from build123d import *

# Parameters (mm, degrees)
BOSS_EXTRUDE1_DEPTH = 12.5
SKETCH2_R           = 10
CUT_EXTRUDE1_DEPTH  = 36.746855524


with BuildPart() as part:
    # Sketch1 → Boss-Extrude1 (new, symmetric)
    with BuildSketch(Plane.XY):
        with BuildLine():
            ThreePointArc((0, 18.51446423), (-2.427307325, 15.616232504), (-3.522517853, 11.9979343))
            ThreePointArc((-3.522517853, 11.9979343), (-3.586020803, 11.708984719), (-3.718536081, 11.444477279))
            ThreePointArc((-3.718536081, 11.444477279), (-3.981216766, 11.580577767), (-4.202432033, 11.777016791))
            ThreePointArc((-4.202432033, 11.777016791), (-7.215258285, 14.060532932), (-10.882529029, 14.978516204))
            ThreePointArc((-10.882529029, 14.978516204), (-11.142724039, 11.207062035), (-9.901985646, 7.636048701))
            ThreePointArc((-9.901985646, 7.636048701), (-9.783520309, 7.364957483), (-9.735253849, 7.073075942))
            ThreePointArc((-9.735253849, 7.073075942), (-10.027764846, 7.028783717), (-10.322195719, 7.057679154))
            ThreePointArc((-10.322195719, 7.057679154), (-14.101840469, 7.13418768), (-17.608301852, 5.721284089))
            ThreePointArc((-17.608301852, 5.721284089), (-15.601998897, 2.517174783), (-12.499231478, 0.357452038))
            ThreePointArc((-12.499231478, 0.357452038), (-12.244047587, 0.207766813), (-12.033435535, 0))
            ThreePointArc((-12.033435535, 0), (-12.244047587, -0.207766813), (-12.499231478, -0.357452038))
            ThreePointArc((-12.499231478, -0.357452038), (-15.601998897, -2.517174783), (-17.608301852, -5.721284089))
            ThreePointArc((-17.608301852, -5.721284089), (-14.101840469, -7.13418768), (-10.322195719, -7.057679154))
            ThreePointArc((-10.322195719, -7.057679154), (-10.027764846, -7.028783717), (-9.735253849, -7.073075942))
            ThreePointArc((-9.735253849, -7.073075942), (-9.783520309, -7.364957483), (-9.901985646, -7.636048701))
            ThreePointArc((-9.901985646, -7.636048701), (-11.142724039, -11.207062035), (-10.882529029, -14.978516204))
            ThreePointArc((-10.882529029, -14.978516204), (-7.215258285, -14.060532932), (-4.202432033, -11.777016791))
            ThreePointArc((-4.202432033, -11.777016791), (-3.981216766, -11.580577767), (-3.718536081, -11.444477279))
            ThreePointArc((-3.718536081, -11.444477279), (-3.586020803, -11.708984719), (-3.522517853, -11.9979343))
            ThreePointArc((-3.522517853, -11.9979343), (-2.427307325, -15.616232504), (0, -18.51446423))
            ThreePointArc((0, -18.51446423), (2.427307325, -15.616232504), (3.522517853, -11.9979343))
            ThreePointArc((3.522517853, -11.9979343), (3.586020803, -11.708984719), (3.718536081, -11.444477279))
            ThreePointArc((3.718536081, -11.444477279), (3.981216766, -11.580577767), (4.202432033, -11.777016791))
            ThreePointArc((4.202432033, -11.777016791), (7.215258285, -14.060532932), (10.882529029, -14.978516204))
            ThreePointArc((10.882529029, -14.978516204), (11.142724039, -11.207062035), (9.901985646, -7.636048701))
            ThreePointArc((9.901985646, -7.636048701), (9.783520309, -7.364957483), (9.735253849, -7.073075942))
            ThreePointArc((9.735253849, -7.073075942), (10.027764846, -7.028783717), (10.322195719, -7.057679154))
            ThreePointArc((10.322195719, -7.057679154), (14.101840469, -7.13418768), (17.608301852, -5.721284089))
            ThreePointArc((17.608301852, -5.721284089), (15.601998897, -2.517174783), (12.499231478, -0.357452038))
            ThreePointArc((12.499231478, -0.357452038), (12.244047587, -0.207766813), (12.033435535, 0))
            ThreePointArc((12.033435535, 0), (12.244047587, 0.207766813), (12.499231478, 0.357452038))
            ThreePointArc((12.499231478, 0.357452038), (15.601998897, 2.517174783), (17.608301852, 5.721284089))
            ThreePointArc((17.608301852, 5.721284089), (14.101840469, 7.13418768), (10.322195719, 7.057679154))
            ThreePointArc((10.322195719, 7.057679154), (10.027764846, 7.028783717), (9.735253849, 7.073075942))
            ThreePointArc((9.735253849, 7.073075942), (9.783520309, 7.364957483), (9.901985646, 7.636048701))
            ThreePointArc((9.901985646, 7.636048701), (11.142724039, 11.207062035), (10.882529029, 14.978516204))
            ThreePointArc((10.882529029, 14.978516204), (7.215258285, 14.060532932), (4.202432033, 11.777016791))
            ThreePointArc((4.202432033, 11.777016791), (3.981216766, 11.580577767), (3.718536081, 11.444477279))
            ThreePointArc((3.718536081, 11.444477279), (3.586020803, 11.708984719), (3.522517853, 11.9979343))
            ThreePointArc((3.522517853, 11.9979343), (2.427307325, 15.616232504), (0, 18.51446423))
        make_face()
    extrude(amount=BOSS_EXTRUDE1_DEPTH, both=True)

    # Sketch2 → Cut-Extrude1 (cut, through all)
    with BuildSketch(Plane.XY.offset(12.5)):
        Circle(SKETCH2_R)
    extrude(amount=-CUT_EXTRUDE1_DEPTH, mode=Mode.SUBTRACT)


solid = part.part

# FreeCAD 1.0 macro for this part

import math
import FreeCAD as App
import Part
import Sketcher

V = App.Vector
Q = App.Units.Quantity

doc = App.newDocument("Part")
params = doc.addObject("Spreadsheet::Sheet", "Params")
for row, (alias, value) in enumerate([
    ("pad1_length", "25 mm"),
    ("sketch2_diameter", "20 mm"),
], start=1):
    params.set(f"A{row}", alias)
    params.set(f"B{row}", "=" + value)
    params.setAlias(f"B{row}", alias)

body = doc.addObject("PartDesign::Body", "Body")

sketch1 = body.newObject("Sketcher::SketchObject", "Sketch")
sketch1.AttachmentSupport = (doc.getObject("XY_Plane"), [""])
sketch1.MapMode = "FlatFace"
sketch1.addGeometry(Part.ArcOfCircle(Part.Circle(V(5.875326, 11.128234, 0), V(0, 0, 1), 9.438), math.radians(128.500254), math.radians(174.712765)), False)
sketch1.addGeometry(Part.ArcOfCircle(Part.Circle(V(-4.712911, 12.108096, 0), V(0, 0, 1), 1.19548), math.radians(-33.718067), math.radians(-5.287235)), False)
sketch1.addGeometry(Part.ArcOfCircle(Part.Circle(V(-3.304135, 12.565835, 0), V(0, 0, 1), 1.19548), math.radians(-138.712765), math.radians(-110.281933)), False)
sketch1.addGeometry(Part.ArcOfCircle(Part.Circle(V(-11.294251, 5.549501, 0), V(0, 0, 1), 9.438), math.radians(41.287235), math.radians(87.499746)), False)
sketch1.addGeometry(Part.ArcOfCircle(Part.Circle(V(-1.787774, 12.456361, 0), V(0, 0, 1), 9.438), math.radians(164.500254), math.radians(210.712765)), False)
sketch1.addGeometry(Part.ArcOfCircle(Part.Circle(V(-10.929786, 7.025476, 0), V(0, 0, 1), 1.19548), math.radians(2.281933), math.radians(30.712765)), False)
sketch1.addGeometry(Part.ArcOfCircle(Part.Circle(V(-10.059114, 8.223853, 0), V(0, 0, 1), 1.19548), math.radians(-102.712765), math.radians(-74.281933)), False)
sketch1.addGeometry(Part.ArcOfCircle(Part.Circle(V(-12.399155, -2.148953, 0), V(0, 0, 1), 9.438), math.radians(77.287235), math.radians(123.499746)), False)
sketch1.addGeometry(Part.ArcOfCircle(Part.Circle(V(-8.768004, 9.02658, 0), V(0, 0, 1), 9.438), math.radians(-159.499746), math.radians(-113.287235)), False)
sketch1.addGeometry(Part.ArcOfCircle(Part.Circle(V(-12.971854, -0.740638, 0), V(0, 0, 1), 1.19548), math.radians(38.281933), math.radians(66.712765)), False)
sketch1.addGeometry(Part.ArcOfCircle(Part.Circle(V(-12.971854, 0.740638, 0), V(0, 0, 1), 1.19548), math.radians(-66.712765), math.radians(-38.281933)), False)
sketch1.addGeometry(Part.ArcOfCircle(Part.Circle(V(-8.768004, -9.02658, 0), V(0, 0, 1), 9.438), math.radians(113.287235), math.radians(159.499746)), False)
sketch1.addGeometry(Part.ArcOfCircle(Part.Circle(V(-12.399155, 2.148953, 0), V(0, 0, 1), 9.438), math.radians(-123.499746), math.radians(-77.287235)), False)
sketch1.addGeometry(Part.ArcOfCircle(Part.Circle(V(-10.059114, -8.223853, 0), V(0, 0, 1), 1.19548), math.radians(74.281933), math.radians(102.712765)), False)
sketch1.addGeometry(Part.ArcOfCircle(Part.Circle(V(-10.929786, -7.025476, 0), V(0, 0, 1), 1.19548), math.radians(-30.712765), math.radians(-2.281933)), False)
sketch1.addGeometry(Part.ArcOfCircle(Part.Circle(V(-1.787774, -12.456361, 0), V(0, 0, 1), 9.438), math.radians(149.287235), math.radians(195.499746)), False)
sketch1.addGeometry(Part.ArcOfCircle(Part.Circle(V(-11.294251, -5.549501, 0), V(0, 0, 1), 9.438), math.radians(-87.499746), math.radians(-41.287235)), False)
sketch1.addGeometry(Part.ArcOfCircle(Part.Circle(V(-3.304135, -12.565835, 0), V(0, 0, 1), 1.19548), math.radians(110.281933), math.radians(138.712765)), False)
sketch1.addGeometry(Part.ArcOfCircle(Part.Circle(V(-4.712911, -12.108096, 0), V(0, 0, 1), 1.19548), math.radians(5.287235), math.radians(33.718067)), False)
sketch1.addGeometry(Part.ArcOfCircle(Part.Circle(V(5.875326, -11.128234, 0), V(0, 0, 1), 9.438), math.radians(-174.712765), math.radians(-128.500254)), False)
sketch1.addGeometry(Part.ArcOfCircle(Part.Circle(V(-5.875326, -11.128234, 0), V(0, 0, 1), 9.438), math.radians(-51.499746), math.radians(-5.287235)), False)
sketch1.addGeometry(Part.ArcOfCircle(Part.Circle(V(4.712911, -12.108096, 0), V(0, 0, 1), 1.19548), math.radians(146.281933), math.radians(174.712765)), False)
sketch1.addGeometry(Part.ArcOfCircle(Part.Circle(V(3.304135, -12.565835, 0), V(0, 0, 1), 1.19548), math.radians(41.287235), math.radians(69.718067)), False)
sketch1.addGeometry(Part.ArcOfCircle(Part.Circle(V(11.294251, -5.549501, 0), V(0, 0, 1), 9.438), math.radians(-138.712765), math.radians(-92.500254)), False)
sketch1.addGeometry(Part.ArcOfCircle(Part.Circle(V(1.787774, -12.456361, 0), V(0, 0, 1), 9.438), math.radians(-15.499746), math.radians(30.712765)), False)
sketch1.addGeometry(Part.ArcOfCircle(Part.Circle(V(10.929786, -7.025476, 0), V(0, 0, 1), 1.19548), math.radians(-177.718067), math.radians(-149.287235)), False)
sketch1.addGeometry(Part.ArcOfCircle(Part.Circle(V(10.059114, -8.223853, 0), V(0, 0, 1), 1.19548), math.radians(77.287235), math.radians(105.718067)), False)
sketch1.addGeometry(Part.ArcOfCircle(Part.Circle(V(12.399155, 2.148953, 0), V(0, 0, 1), 9.438), math.radians(-102.712765), math.radians(-56.500254)), False)
sketch1.addGeometry(Part.ArcOfCircle(Part.Circle(V(8.768004, -9.02658, 0), V(0, 0, 1), 9.438), math.radians(20.500254), math.radians(66.712765)), False)
sketch1.addGeometry(Part.ArcOfCircle(Part.Circle(V(12.971854, 0.740638, 0), V(0, 0, 1), 1.19548), math.radians(-141.718067), math.radians(-113.287235)), False)
sketch1.addGeometry(Part.ArcOfCircle(Part.Circle(V(12.971854, -0.740638, 0), V(0, 0, 1), 1.19548), math.radians(113.287235), math.radians(141.718067)), False)
sketch1.addGeometry(Part.ArcOfCircle(Part.Circle(V(8.768004, 9.02658, 0), V(0, 0, 1), 9.438), math.radians(-66.712765), math.radians(-20.500254)), False)
sketch1.addGeometry(Part.ArcOfCircle(Part.Circle(V(12.399155, -2.148953, 0), V(0, 0, 1), 9.438), math.radians(56.500254), math.radians(102.712765)), False)
sketch1.addGeometry(Part.ArcOfCircle(Part.Circle(V(10.059114, 8.223853, 0), V(0, 0, 1), 1.19548), math.radians(-105.718067), math.radians(-77.287235)), False)
sketch1.addGeometry(Part.ArcOfCircle(Part.Circle(V(10.929786, 7.025476, 0), V(0, 0, 1), 1.19548), math.radians(149.287235), math.radians(177.718067)), False)
sketch1.addGeometry(Part.ArcOfCircle(Part.Circle(V(1.787774, 12.456361, 0), V(0, 0, 1), 9.438), math.radians(-30.712765), math.radians(15.499746)), False)
sketch1.addGeometry(Part.ArcOfCircle(Part.Circle(V(11.294251, 5.549501, 0), V(0, 0, 1), 9.438), math.radians(92.500254), math.radians(138.712765)), False)
sketch1.addGeometry(Part.ArcOfCircle(Part.Circle(V(3.304135, 12.565835, 0), V(0, 0, 1), 1.19548), math.radians(-69.718067), math.radians(-41.287235)), False)
sketch1.addGeometry(Part.ArcOfCircle(Part.Circle(V(4.712911, 12.108096, 0), V(0, 0, 1), 1.19548), math.radians(-174.712765), math.radians(-146.281933)), False)
sketch1.addGeometry(Part.ArcOfCircle(Part.Circle(V(-5.875326, 11.128234, 0), V(0, 0, 1), 9.438), math.radians(5.287235), math.radians(51.499746)), False)
sketch1.addConstraint(Sketcher.Constraint("Coincident", 0, 2, 1, 2))
sketch1.addConstraint(Sketcher.Constraint("Coincident", 1, 1, 2, 2))
sketch1.addConstraint(Sketcher.Constraint("Coincident", 2, 1, 3, 1))
sketch1.addConstraint(Sketcher.Constraint("Coincident", 3, 2, 4, 1))
sketch1.addConstraint(Sketcher.Constraint("Coincident", 4, 2, 5, 2))
sketch1.addConstraint(Sketcher.Constraint("Coincident", 5, 1, 6, 2))
sketch1.addConstraint(Sketcher.Constraint("Coincident", 6, 1, 7, 1))
sketch1.addConstraint(Sketcher.Constraint("Coincident", 7, 2, 8, 1))
sketch1.addConstraint(Sketcher.Constraint("Coincident", 8, 2, 9, 2))
sketch1.addConstraint(Sketcher.Constraint("Coincident", 9, 1, 10, 2))
sketch1.addConstraint(Sketcher.Constraint("Coincident", 10, 1, 11, 1))
sketch1.addConstraint(Sketcher.Constraint("Coincident", 11, 2, 12, 1))
sketch1.addConstraint(Sketcher.Constraint("Coincident", 12, 2, 13, 2))
sketch1.addConstraint(Sketcher.Constraint("Coincident", 13, 1, 14, 2))
sketch1.addConstraint(Sketcher.Constraint("Coincident", 14, 1, 15, 1))
sketch1.addConstraint(Sketcher.Constraint("Coincident", 15, 2, 16, 1))
sketch1.addConstraint(Sketcher.Constraint("Coincident", 16, 2, 17, 2))
sketch1.addConstraint(Sketcher.Constraint("Coincident", 17, 1, 18, 2))
sketch1.addConstraint(Sketcher.Constraint("Coincident", 18, 1, 19, 1))
sketch1.addConstraint(Sketcher.Constraint("Coincident", 19, 2, 20, 1))
sketch1.addConstraint(Sketcher.Constraint("Coincident", 20, 2, 21, 2))
sketch1.addConstraint(Sketcher.Constraint("Coincident", 21, 1, 22, 2))
sketch1.addConstraint(Sketcher.Constraint("Coincident", 22, 1, 23, 1))
sketch1.addConstraint(Sketcher.Constraint("Coincident", 23, 2, 24, 1))
sketch1.addConstraint(Sketcher.Constraint("Coincident", 24, 2, 25, 2))
sketch1.addConstraint(Sketcher.Constraint("Coincident", 25, 1, 26, 2))
sketch1.addConstraint(Sketcher.Constraint("Coincident", 26, 1, 27, 1))
sketch1.addConstraint(Sketcher.Constraint("Coincident", 27, 2, 28, 1))
sketch1.addConstraint(Sketcher.Constraint("Coincident", 28, 2, 29, 2))
sketch1.addConstraint(Sketcher.Constraint("Coincident", 29, 1, 30, 2))
sketch1.addConstraint(Sketcher.Constraint("Coincident", 30, 1, 31, 1))
sketch1.addConstraint(Sketcher.Constraint("Coincident", 31, 2, 32, 1))
sketch1.addConstraint(Sketcher.Constraint("Coincident", 32, 2, 33, 2))
sketch1.addConstraint(Sketcher.Constraint("Coincident", 33, 1, 34, 2))
sketch1.addConstraint(Sketcher.Constraint("Coincident", 34, 1, 35, 1))
sketch1.addConstraint(Sketcher.Constraint("Coincident", 35, 2, 36, 1))
sketch1.addConstraint(Sketcher.Constraint("Coincident", 36, 2, 37, 2))
sketch1.addConstraint(Sketcher.Constraint("Coincident", 37, 1, 38, 2))
sketch1.addConstraint(Sketcher.Constraint("Coincident", 38, 1, 39, 1))
sketch1.addConstraint(Sketcher.Constraint("Coincident", 39, 2, 0, 1))
sketch1.addConstraint(Sketcher.Constraint("PointOnObject", 9, 1, -1))
sketch1.addConstraint(Sketcher.Constraint("PointOnObject", 19, 2, -2))
sketch1.addConstraint(Sketcher.Constraint("PointOnObject", 29, 1, -1))
sketch1.addConstraint(Sketcher.Constraint("PointOnObject", 39, 2, -2))
sketch1.addConstraint(Sketcher.Constraint("Radius", 0, Q("9.438 mm")))
sketch1.addConstraint(Sketcher.Constraint("Radius", 3, Q("9.438 mm")))
sketch1.addConstraint(Sketcher.Constraint("Radius", 4, Q("9.438 mm")))
sketch1.addConstraint(Sketcher.Constraint("Radius", 7, Q("9.438 mm")))
sketch1.addConstraint(Sketcher.Constraint("Radius", 8, Q("9.438 mm")))
sketch1.addConstraint(Sketcher.Constraint("Radius", 11, Q("9.438 mm")))
sketch1.addConstraint(Sketcher.Constraint("Radius", 12, Q("9.438 mm")))
sketch1.addConstraint(Sketcher.Constraint("Radius", 15, Q("9.438 mm")))
sketch1.addConstraint(Sketcher.Constraint("Radius", 16, Q("9.438 mm")))
sketch1.addConstraint(Sketcher.Constraint("Radius", 19, Q("9.438 mm")))
sketch1.addConstraint(Sketcher.Constraint("Radius", 20, Q("9.438 mm")))
sketch1.addConstraint(Sketcher.Constraint("Radius", 23, Q("9.438 mm")))
sketch1.addConstraint(Sketcher.Constraint("Radius", 24, Q("9.438 mm")))
sketch1.addConstraint(Sketcher.Constraint("Radius", 27, Q("9.438 mm")))
sketch1.addConstraint(Sketcher.Constraint("Radius", 28, Q("9.438 mm")))
sketch1.addConstraint(Sketcher.Constraint("Radius", 31, Q("9.438 mm")))
sketch1.addConstraint(Sketcher.Constraint("Radius", 32, Q("9.438 mm")))
sketch1.addConstraint(Sketcher.Constraint("Radius", 35, Q("9.438 mm")))
sketch1.addConstraint(Sketcher.Constraint("Radius", 36, Q("9.438 mm")))
sketch1.addConstraint(Sketcher.Constraint("Radius", 39, Q("9.438 mm")))
sketch1.addConstraint(Sketcher.Constraint("Radius", 1, Q("1.19548 mm")))
sketch1.addConstraint(Sketcher.Constraint("Radius", 2, Q("1.19548 mm")))
sketch1.addConstraint(Sketcher.Constraint("Radius", 5, Q("1.19548 mm")))
sketch1.addConstraint(Sketcher.Constraint("Radius", 6, Q("1.19548 mm")))
sketch1.addConstraint(Sketcher.Constraint("Radius", 9, Q("1.19548 mm")))
sketch1.addConstraint(Sketcher.Constraint("Radius", 10, Q("1.19548 mm")))
sketch1.addConstraint(Sketcher.Constraint("Radius", 13, Q("1.19548 mm")))
sketch1.addConstraint(Sketcher.Constraint("Radius", 14, Q("1.19548 mm")))
sketch1.addConstraint(Sketcher.Constraint("Radius", 17, Q("1.19548 mm")))
sketch1.addConstraint(Sketcher.Constraint("Radius", 18, Q("1.19548 mm")))
sketch1.addConstraint(Sketcher.Constraint("Radius", 21, Q("1.19548 mm")))
sketch1.addConstraint(Sketcher.Constraint("Radius", 22, Q("1.19548 mm")))
sketch1.addConstraint(Sketcher.Constraint("Radius", 25, Q("1.19548 mm")))
sketch1.addConstraint(Sketcher.Constraint("Radius", 26, Q("1.19548 mm")))
sketch1.addConstraint(Sketcher.Constraint("Radius", 29, Q("1.19548 mm")))
sketch1.addConstraint(Sketcher.Constraint("Radius", 30, Q("1.19548 mm")))
sketch1.addConstraint(Sketcher.Constraint("Radius", 33, Q("1.19548 mm")))
sketch1.addConstraint(Sketcher.Constraint("Radius", 34, Q("1.19548 mm")))
sketch1.addConstraint(Sketcher.Constraint("Radius", 37, Q("1.19548 mm")))
sketch1.addConstraint(Sketcher.Constraint("Radius", 38, Q("1.19548 mm")))
sketch1.addConstraint(Sketcher.Constraint("DistanceY", -1, 1, 3, 3, Q("5.549501 mm")))
sketch1.addConstraint(Sketcher.Constraint("DistanceY", 16, 3, -1, 1, Q("5.549501 mm")))
sketch1.addConstraint(Sketcher.Constraint("DistanceY", 23, 3, -1, 1, Q("5.549501 mm")))
sketch1.addConstraint(Sketcher.Constraint("DistanceY", -1, 1, 36, 3, Q("5.549501 mm")))
sketch1.addConstraint(Sketcher.Constraint("DistanceX", 7, 2, -1, 1, Q("17.608302 mm")))
sketch1.addConstraint(Sketcher.Constraint("DistanceX", 11, 2, -1, 1, Q("17.608302 mm")))
sketch1.addConstraint(Sketcher.Constraint("DistanceX", -1, 1, 27, 2, Q("17.608302 mm")))
sketch1.addConstraint(Sketcher.Constraint("DistanceX", -1, 1, 31, 2, Q("17.608302 mm")))
sketch1.addConstraint(Sketcher.Constraint("DistanceX", 1, 3, -1, 1, Q("4.712911 mm")))
sketch1.addConstraint(Sketcher.Constraint("DistanceX", 3, 3, -1, 1, Q("11.294251 mm")))
sketch1.addConstraint(Sketcher.Constraint("DistanceY", -1, 1, 4, 3, Q("12.456361 mm")))
sketch1.addConstraint(Sketcher.Constraint("DistanceY", -1, 1, 8, 3, Q("9.02658 mm")))
sketch1.addConstraint(Sketcher.Constraint("DistanceY", 11, 3, -1, 1, Q("9.02658 mm")))
sketch1.addConstraint(Sketcher.Constraint("DistanceY", 15, 3, -1, 1, Q("12.456361 mm")))
sketch1.addConstraint(Sketcher.Constraint("DistanceX", 16, 3, -1, 1, Q("11.294251 mm")))
sketch1.addConstraint(Sketcher.Constraint("DistanceX", 18, 3, -1, 1, Q("4.712911 mm")))
sketch1.addConstraint(Sketcher.Constraint("DistanceX", -1, 1, 21, 3, Q("4.712911 mm")))
sketch1.addConstraint(Sketcher.Constraint("DistanceX", -1, 1, 23, 3, Q("11.294251 mm")))
sketch1.addConstraint(Sketcher.Constraint("DistanceY", 24, 3, -1, 1, Q("12.456361 mm")))
sketch1.addConstraint(Sketcher.Constraint("DistanceY", 28, 3, -1, 1, Q("9.02658 mm")))
sketch1.addConstraint(Sketcher.Constraint("DistanceY", -1, 1, 31, 3, Q("9.02658 mm")))
sketch1.addConstraint(Sketcher.Constraint("DistanceY", -1, 1, 35, 3, Q("12.456361 mm")))
sketch1.addConstraint(Sketcher.Constraint("DistanceX", -1, 1, 36, 3, Q("11.294251 mm")))
sketch1.addConstraint(Sketcher.Constraint("DistanceX", -1, 1, 38, 3, Q("4.712911 mm")))
sketch1.addConstraint(Sketcher.Constraint("DistanceX", 3, 2, -1, 1, Q("10.882529 mm")))
sketch1.addConstraint(Sketcher.Constraint("DistanceY", -1, 1, 4, 2, Q("7.636049 mm")))
sketch1.addConstraint(Sketcher.Constraint("DistanceY", -1, 1, 6, 1, Q("7.057679 mm")))
sketch1.addConstraint(Sketcher.Constraint("DistanceX", 8, 2, -1, 1, Q("12.499231 mm")))
sketch1.addConstraint(Sketcher.Constraint("DistanceX", 10, 1, -1, 1, Q("12.499231 mm")))
sketch1.addConstraint(Sketcher.Constraint("DistanceY", 12, 2, -1, 1, Q("7.057679 mm")))
sketch1.addConstraint(Sketcher.Constraint("DistanceY", 14, 1, -1, 1, Q("7.636049 mm")))
sketch1.addConstraint(Sketcher.Constraint("DistanceX", 15, 2, -1, 1, Q("10.882529 mm")))
sketch1.addConstraint(Sketcher.Constraint("DistanceX", -1, 1, 23, 2, Q("10.882529 mm")))
sketch1.addConstraint(Sketcher.Constraint("DistanceY", 24, 2, -1, 1, Q("7.636049 mm")))
sketch1.addConstraint(Sketcher.Constraint("DistanceY", 26, 1, -1, 1, Q("7.057679 mm")))
sketch1.addConstraint(Sketcher.Constraint("DistanceX", -1, 1, 28, 2, Q("12.499231 mm")))
sketch1.addConstraint(Sketcher.Constraint("DistanceX", -1, 1, 30, 1, Q("12.499231 mm")))
sketch1.addConstraint(Sketcher.Constraint("DistanceY", -1, 1, 32, 2, Q("7.057679 mm")))
sketch1.addConstraint(Sketcher.Constraint("DistanceY", -1, 1, 34, 1, Q("7.636049 mm")))
sketch1.addConstraint(Sketcher.Constraint("DistanceX", -1, 1, 35, 2, Q("10.882529 mm")))
sketch1.addConstraint(Sketcher.Constraint("DistanceX", -1, 1, 0, 3, Q("5.875326 mm")))
sketch1.addConstraint(Sketcher.Constraint("DistanceY", -1, 1, 0, 3, Q("11.128234 mm")))
sketch1.addConstraint(Sketcher.Constraint("DistanceX", 2, 3, -1, 1, Q("3.304135 mm")))
sketch1.addConstraint(Sketcher.Constraint("DistanceX", 5, 3, -1, 1, Q("10.929786 mm")))
sketch1.addConstraint(Sketcher.Constraint("DistanceX", 6, 3, -1, 1, Q("10.059114 mm")))
sketch1.addConstraint(Sketcher.Constraint("DistanceY", -1, 1, 6, 3, Q("8.223853 mm")))
sketch1.addConstraint(Sketcher.Constraint("DistanceX", 7, 3, -1, 1, Q("12.399155 mm")))
sketch1.addConstraint(Sketcher.Constraint("DistanceX", 9, 3, -1, 1, Q("12.971854 mm")))
sketch1.addConstraint(Sketcher.Constraint("DistanceX", 10, 3, -1, 1, Q("12.971854 mm")))
sketch1.addConstraint(Sketcher.Constraint("DistanceX", 12, 3, -1, 1, Q("12.399155 mm")))
sketch1.addConstraint(Sketcher.Constraint("DistanceX", 13, 3, -1, 1, Q("10.059114 mm")))
sketch1.addConstraint(Sketcher.Constraint("DistanceX", 14, 3, -1, 1, Q("10.929786 mm")))
sketch1.addConstraint(Sketcher.Constraint("DistanceX", 17, 3, -1, 1, Q("3.304135 mm")))
sketch1.addConstraint(Sketcher.Constraint("DistanceY", 18, 3, -1, 1, Q("12.108096 mm")))
sketch1.addConstraint(Sketcher.Constraint("DistanceX", -1, 1, 19, 3, Q("5.875326 mm")))
sketch1.addConstraint(Sketcher.Constraint("DistanceX", 20, 3, -1, 1, Q("5.875326 mm")))
sketch1.addConstraint(Sketcher.Constraint("DistanceX", -1, 1, 22, 3, Q("3.304135 mm")))
sketch1.addConstraint(Sketcher.Constraint("DistanceX", -1, 1, 25, 3, Q("10.929786 mm")))
sketch1.addConstraint(Sketcher.Constraint("DistanceX", -1, 1, 26, 3, Q("10.059114 mm")))
sketch1.addConstraint(Sketcher.Constraint("DistanceY", 26, 3, -1, 1, Q("8.223853 mm")))
sketch1.addConstraint(Sketcher.Constraint("DistanceX", -1, 1, 27, 3, Q("12.399155 mm")))
sketch1.addConstraint(Sketcher.Constraint("DistanceX", -1, 1, 29, 3, Q("12.971854 mm")))
sketch1.addConstraint(Sketcher.Constraint("DistanceX", -1, 1, 30, 3, Q("12.971854 mm")))
sketch1.addConstraint(Sketcher.Constraint("DistanceX", -1, 1, 32, 3, Q("12.399155 mm")))
sketch1.addConstraint(Sketcher.Constraint("DistanceX", -1, 1, 33, 3, Q("10.059114 mm")))
sketch1.addConstraint(Sketcher.Constraint("DistanceX", -1, 1, 34, 3, Q("10.929786 mm")))
sketch1.addConstraint(Sketcher.Constraint("DistanceX", -1, 1, 37, 3, Q("3.304135 mm")))
sketch1.addConstraint(Sketcher.Constraint("DistanceY", -1, 1, 38, 3, Q("12.108096 mm")))
sketch1.addConstraint(Sketcher.Constraint("DistanceX", 0, 2, -1, 1, Q("3.522518 mm")))
sketch1.addConstraint(Sketcher.Constraint("DistanceX", 2, 1, -1, 1, Q("4.202432 mm")))
sketch1.addConstraint(Sketcher.Constraint("DistanceX", 16, 2, -1, 1, Q("4.202432 mm")))
sketch1.addConstraint(Sketcher.Constraint("DistanceX", 18, 1, -1, 1, Q("3.522518 mm")))
sketch1.addConstraint(Sketcher.Constraint("DistanceX", -1, 1, 20, 2, Q("3.522518 mm")))
sketch1.addConstraint(Sketcher.Constraint("DistanceX", -1, 1, 22, 1, Q("4.202432 mm")))
sketch1.addConstraint(Sketcher.Constraint("DistanceX", -1, 1, 36, 2, Q("4.202432 mm")))
sketch1.addConstraint(Sketcher.Constraint("DistanceX", -1, 1, 38, 1, Q("3.522518 mm")))
pad1 = body.newObject("PartDesign::Pad", "Pad")
pad1.Profile = sketch1
pad1.setExpression("Length", "Params.pad1_length")
pad1.Midplane = True

sketch2 = body.newObject("Sketcher::SketchObject", "Sketch001")
sketch2.AttachmentSupport = (doc.getObject("XY_Plane"), [""])
sketch2.MapMode = "FlatFace"
sketch2.AttachmentOffset = App.Placement(V(0, 0, 12.5), App.Rotation())
sketch2.addGeometry(Part.Circle(V(0, 0, 0), V(0, 0, 1), 10), False)
sketch2.addConstraint(Sketcher.Constraint("Coincident", 0, 3, -1, 1))
sketch2.addConstraint(Sketcher.Constraint("Diameter", 0, Q("20 mm")))
sketch2.setExpression("Constraints[1]", "Params.sketch2_diameter")
pocket1 = body.newObject("PartDesign::Pocket", "Pocket")
pocket1.Profile = sketch2
pocket1.Type = "ThroughAll"

doc.recompute()
